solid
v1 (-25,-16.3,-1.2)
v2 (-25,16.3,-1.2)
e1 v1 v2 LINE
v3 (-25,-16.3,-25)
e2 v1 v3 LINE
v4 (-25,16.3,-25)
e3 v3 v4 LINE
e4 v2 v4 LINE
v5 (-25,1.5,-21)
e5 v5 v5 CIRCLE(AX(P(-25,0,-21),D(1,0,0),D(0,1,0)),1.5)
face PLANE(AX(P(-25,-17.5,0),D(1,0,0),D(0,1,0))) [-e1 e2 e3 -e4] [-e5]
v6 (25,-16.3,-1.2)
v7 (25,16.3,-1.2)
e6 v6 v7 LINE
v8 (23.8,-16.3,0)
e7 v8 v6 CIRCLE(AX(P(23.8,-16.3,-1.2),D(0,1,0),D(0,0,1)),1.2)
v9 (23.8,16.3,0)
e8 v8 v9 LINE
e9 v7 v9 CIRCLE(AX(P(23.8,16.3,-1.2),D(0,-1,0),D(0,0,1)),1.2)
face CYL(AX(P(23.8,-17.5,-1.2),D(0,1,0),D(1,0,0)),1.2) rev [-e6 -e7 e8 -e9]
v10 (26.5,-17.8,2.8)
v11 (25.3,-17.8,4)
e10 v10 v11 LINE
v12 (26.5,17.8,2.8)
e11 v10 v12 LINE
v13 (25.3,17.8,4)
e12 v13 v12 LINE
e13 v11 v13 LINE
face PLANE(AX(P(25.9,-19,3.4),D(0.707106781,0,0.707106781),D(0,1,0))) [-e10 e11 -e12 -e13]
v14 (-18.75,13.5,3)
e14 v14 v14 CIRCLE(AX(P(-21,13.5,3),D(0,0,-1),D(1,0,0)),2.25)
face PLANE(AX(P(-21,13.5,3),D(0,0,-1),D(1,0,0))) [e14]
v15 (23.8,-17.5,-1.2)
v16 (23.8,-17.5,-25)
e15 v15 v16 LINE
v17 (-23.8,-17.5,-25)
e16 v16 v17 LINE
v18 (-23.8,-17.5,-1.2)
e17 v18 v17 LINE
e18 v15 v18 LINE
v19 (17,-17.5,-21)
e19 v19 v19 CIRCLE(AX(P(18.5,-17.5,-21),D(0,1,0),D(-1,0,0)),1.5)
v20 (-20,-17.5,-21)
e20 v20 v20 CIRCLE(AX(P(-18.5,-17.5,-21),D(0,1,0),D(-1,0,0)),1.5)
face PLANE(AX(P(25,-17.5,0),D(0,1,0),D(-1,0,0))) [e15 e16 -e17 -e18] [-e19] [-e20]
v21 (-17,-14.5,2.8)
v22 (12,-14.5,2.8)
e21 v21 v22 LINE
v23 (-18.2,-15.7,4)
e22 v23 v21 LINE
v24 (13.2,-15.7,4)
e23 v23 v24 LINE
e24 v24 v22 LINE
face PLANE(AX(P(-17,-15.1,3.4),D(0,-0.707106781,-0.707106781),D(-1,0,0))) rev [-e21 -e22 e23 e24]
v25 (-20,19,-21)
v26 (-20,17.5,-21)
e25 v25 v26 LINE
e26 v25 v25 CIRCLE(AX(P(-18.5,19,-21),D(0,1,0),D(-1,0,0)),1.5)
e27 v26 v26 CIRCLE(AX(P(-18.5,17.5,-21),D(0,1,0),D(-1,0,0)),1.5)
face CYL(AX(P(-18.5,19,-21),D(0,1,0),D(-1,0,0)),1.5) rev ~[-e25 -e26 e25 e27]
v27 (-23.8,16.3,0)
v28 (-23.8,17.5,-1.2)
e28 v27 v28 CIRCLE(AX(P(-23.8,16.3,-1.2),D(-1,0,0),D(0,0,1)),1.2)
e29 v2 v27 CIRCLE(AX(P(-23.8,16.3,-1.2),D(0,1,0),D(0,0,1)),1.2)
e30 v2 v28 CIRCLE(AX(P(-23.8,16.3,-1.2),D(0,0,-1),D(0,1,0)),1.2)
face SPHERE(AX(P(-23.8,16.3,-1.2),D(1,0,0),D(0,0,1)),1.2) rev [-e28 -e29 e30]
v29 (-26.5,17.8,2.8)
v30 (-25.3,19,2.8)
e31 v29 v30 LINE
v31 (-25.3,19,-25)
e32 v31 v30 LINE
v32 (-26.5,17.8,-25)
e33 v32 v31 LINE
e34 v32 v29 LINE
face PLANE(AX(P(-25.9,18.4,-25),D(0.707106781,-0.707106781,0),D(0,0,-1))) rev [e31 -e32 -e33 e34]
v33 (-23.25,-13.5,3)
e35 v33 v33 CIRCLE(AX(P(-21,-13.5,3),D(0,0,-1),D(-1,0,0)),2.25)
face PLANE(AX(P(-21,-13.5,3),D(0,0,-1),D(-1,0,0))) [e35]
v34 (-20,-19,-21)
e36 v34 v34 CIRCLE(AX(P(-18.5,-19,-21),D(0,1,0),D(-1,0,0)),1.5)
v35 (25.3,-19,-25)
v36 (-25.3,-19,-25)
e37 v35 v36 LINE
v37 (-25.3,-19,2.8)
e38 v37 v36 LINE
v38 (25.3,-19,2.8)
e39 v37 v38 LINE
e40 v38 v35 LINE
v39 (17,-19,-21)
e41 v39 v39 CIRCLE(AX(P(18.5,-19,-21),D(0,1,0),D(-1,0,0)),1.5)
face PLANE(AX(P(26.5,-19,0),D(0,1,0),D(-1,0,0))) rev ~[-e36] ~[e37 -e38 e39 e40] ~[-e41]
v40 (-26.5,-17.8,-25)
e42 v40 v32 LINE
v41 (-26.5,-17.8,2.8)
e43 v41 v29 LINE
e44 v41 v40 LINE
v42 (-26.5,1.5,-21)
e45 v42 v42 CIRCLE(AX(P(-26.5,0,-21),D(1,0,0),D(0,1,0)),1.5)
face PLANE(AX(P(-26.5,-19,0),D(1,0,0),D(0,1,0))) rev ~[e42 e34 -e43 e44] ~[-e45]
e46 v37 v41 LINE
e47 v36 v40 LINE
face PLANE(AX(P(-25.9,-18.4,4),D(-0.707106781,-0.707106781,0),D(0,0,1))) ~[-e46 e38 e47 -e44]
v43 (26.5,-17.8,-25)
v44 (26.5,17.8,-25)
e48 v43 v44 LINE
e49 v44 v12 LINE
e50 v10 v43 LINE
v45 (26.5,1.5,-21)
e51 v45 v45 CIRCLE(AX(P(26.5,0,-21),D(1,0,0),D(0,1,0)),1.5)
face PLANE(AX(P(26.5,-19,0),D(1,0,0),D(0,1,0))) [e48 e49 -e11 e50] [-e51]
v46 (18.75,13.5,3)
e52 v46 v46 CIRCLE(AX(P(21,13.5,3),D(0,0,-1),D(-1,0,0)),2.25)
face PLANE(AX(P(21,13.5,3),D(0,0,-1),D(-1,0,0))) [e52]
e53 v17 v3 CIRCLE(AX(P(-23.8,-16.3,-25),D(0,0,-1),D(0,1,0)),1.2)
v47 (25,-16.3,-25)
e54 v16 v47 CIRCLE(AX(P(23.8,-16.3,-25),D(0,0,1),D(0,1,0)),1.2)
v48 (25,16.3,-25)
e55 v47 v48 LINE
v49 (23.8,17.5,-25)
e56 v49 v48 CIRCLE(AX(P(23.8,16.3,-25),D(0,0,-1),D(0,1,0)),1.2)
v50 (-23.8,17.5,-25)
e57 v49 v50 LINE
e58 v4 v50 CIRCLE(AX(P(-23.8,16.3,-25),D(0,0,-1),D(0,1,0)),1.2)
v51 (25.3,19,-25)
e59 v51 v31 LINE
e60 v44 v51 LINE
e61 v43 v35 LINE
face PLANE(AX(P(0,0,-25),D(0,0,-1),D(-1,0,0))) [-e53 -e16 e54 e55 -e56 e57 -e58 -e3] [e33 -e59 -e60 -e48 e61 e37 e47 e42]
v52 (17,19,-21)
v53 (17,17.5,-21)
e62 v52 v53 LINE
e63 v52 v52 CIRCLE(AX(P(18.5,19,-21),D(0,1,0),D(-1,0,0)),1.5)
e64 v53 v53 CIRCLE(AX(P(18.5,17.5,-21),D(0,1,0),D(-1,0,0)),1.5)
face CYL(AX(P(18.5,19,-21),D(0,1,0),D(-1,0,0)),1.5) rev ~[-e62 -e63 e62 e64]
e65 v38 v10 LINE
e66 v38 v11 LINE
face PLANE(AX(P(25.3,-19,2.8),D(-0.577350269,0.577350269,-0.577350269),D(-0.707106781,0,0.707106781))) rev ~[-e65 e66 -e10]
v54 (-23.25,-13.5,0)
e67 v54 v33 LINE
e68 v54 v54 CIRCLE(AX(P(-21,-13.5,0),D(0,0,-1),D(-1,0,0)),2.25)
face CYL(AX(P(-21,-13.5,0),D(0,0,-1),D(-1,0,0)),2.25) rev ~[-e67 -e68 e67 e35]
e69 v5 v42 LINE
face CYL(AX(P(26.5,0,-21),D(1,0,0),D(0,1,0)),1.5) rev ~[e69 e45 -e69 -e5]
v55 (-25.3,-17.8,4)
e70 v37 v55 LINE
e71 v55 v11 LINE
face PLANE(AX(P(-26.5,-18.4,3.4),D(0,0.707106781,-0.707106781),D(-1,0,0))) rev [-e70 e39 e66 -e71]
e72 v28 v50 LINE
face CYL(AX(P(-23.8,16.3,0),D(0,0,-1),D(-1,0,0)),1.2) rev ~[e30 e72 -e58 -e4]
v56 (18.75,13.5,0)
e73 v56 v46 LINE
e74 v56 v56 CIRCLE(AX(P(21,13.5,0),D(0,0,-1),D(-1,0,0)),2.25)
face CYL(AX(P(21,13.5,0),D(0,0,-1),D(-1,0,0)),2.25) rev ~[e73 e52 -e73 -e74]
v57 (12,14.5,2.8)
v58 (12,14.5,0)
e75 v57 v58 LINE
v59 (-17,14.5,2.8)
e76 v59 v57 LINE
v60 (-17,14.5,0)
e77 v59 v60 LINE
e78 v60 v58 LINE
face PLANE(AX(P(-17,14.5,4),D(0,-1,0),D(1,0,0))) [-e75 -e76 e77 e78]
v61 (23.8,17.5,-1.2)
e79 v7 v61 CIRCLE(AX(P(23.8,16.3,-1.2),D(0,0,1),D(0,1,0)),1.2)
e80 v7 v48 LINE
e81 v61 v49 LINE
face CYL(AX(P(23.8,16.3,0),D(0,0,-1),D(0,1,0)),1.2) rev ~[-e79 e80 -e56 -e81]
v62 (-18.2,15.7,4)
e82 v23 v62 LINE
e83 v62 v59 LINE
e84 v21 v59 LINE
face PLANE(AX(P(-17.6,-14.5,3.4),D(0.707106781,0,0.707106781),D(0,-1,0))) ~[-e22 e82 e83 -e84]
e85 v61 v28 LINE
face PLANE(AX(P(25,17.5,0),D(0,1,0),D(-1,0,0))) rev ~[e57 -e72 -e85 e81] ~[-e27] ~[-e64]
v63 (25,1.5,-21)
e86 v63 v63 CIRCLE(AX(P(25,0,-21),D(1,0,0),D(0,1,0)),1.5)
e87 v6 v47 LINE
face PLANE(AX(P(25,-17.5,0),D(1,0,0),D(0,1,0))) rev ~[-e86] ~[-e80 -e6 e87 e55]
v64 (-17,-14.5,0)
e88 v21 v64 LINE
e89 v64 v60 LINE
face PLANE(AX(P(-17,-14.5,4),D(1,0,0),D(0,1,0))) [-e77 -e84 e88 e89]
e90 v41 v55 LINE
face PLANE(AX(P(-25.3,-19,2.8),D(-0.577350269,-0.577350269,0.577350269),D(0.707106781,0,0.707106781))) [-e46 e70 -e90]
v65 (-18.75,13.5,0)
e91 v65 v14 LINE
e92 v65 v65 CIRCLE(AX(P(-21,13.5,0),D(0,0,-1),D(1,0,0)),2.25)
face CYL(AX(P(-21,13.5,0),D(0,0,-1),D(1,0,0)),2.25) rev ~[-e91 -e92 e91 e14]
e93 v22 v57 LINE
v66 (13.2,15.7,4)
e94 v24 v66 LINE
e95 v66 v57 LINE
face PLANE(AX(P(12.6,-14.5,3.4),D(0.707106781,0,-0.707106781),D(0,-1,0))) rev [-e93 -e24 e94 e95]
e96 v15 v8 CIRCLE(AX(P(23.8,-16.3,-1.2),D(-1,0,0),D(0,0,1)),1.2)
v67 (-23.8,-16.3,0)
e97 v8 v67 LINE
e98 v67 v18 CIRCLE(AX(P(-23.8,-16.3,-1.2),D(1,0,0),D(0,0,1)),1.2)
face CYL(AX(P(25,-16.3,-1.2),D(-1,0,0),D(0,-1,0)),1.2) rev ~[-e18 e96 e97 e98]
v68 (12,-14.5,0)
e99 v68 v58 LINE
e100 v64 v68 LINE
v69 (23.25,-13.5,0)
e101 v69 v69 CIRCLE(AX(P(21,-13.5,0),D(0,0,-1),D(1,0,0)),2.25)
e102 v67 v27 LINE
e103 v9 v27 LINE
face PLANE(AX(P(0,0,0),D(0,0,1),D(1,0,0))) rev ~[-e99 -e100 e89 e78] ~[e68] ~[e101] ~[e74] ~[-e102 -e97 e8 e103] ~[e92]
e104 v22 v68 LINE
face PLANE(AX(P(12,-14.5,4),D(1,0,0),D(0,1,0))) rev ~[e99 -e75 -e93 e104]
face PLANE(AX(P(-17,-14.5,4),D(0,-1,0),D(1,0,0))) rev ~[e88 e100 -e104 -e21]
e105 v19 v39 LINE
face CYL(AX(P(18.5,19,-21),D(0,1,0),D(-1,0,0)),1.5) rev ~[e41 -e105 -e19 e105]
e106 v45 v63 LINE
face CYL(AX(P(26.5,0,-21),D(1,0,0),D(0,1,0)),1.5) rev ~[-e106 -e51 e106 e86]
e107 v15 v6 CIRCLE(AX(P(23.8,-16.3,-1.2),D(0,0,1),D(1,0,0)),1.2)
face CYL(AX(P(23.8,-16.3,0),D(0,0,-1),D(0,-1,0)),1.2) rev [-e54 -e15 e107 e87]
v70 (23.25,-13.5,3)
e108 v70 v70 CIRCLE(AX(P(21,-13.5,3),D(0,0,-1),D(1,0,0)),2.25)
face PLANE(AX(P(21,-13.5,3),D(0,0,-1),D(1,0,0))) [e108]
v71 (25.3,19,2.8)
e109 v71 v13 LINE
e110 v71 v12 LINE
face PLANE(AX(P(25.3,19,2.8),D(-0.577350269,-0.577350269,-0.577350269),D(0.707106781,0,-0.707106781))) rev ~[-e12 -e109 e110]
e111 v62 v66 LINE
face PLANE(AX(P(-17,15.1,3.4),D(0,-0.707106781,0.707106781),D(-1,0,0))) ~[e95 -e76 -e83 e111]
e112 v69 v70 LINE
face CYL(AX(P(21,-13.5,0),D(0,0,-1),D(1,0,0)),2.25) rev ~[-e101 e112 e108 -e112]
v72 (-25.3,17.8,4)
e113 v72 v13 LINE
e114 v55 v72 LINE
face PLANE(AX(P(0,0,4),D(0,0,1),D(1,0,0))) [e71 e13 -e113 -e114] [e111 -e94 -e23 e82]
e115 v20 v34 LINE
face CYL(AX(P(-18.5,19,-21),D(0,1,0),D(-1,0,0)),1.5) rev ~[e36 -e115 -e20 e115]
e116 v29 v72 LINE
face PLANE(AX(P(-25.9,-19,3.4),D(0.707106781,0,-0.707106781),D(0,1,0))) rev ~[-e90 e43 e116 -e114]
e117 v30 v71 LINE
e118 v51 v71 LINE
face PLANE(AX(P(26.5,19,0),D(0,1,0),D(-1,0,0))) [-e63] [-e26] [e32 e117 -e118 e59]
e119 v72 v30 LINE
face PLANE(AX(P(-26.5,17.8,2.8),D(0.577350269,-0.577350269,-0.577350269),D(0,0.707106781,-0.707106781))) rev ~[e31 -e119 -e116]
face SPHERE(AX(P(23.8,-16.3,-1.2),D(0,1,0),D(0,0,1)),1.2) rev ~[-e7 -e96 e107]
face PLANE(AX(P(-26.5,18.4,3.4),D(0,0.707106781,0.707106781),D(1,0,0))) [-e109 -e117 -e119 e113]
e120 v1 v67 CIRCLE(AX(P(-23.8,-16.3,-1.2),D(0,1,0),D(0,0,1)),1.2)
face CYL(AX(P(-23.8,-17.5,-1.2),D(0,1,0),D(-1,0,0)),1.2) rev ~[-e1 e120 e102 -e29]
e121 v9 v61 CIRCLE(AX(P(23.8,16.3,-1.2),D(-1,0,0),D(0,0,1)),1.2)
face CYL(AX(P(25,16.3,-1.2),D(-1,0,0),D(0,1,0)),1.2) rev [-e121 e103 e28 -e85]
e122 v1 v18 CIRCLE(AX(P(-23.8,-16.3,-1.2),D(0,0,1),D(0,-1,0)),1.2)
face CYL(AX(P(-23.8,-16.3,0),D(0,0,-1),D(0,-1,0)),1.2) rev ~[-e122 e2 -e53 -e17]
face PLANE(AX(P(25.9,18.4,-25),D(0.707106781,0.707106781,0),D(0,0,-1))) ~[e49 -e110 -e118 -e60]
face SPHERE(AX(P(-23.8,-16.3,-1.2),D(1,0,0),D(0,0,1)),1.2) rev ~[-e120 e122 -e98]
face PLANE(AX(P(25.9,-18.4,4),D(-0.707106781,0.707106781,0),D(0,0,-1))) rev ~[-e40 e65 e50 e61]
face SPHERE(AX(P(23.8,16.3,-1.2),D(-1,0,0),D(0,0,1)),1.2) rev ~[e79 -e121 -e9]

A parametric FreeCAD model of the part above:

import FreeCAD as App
import Part
import Sketcher
from FreeCAD import Vector
Q = App.Units.Quantity


def edges_at(feature, points):
    """Names of the edges that pass closest to the given points."""
    edges = feature.Shape.Edges
    near = lambda p: min(range(len(edges)), key=lambda i: edges[i].distToShape(Part.Vertex(*p))[0])
    return sorted({f"Edge{near(p) + 1}" for p in points})


def add_polygon(sketch, points):
    """Adds a closed chain of lines whose ends are joined by coincident constraints."""
    first, n = sketch.GeometryCount, len(points)
    for a, b in zip(points, points[1:] + points[:1]):
        sketch.addGeometry(Part.LineSegment(App.Vector(*a, 0), App.Vector(*b, 0)), False)
    for i in range(n):
        sketch.addConstraint(Sketcher.Constraint("Coincident", first + i, 2, first + (i + 1) % n, 1))

doc = App.newDocument("Part")
body = doc.addObject("PartDesign::Body", "Body")

# Sketch on XY plane
sketch1 = body.newObject("Sketcher::SketchObject", "Sketch")
sketch1.AttachmentSupport = (doc.getObject("XY_Plane"), [""])
sketch1.MapMode = "FlatFace"
add_polygon(sketch1, [(-26.5, 19), (-26.5, -19), (26.5, -19), (26.5, 19)])  # lines 0-3
sketch1.addConstraint(Sketcher.Constraint("Vertical", 0))
sketch1.addConstraint(Sketcher.Constraint("Horizontal", 1))
sketch1.addConstraint(Sketcher.Constraint("Vertical", 2))
sketch1.addConstraint(Sketcher.Constraint("Horizontal", 3))
sketch1.addConstraint(Sketcher.Constraint("Symmetric", 0, 2, 2, 2, -1, 1))
sketch1.addConstraint(Sketcher.Constraint("DistanceX", 1, 1, 1, 2, Q("53 mm")))
sketch1.addConstraint(Sketcher.Constraint("DistanceY", 0, 2, 0, 1, Q("38 mm")))
pad1 = body.newObject("PartDesign::Pad", "Pad")
pad1.Profile = sketch1
pad1.Length = 4

# Sketch on XY plane
sketch2 = body.newObject("Sketcher::SketchObject", "Sketch001")
sketch2.AttachmentSupport = (doc.getObject("XY_Plane"), [""])
sketch2.MapMode = "FlatFace"
sketch2.AttachmentOffset = App.Placement(Vector(0, 0, 4), App.Rotation())
add_polygon(sketch2, [(-17, 14.5), (-17, -14.5), (12, -14.5), (12, 14.5)])  # lines 0-3
sketch2.addConstraint(Sketcher.Constraint("Vertical", 0))
sketch2.addConstraint(Sketcher.Constraint("Horizontal", 1))
sketch2.addConstraint(Sketcher.Constraint("Vertical", 2))
sketch2.addConstraint(Sketcher.Constraint("Horizontal", 3))
sketch2.addConstraint(Sketcher.Constraint("Equal", 3, 0))
sketch2.addConstraint(Sketcher.Constraint("DistanceX", 1, 1, 1, 2, Q("29 mm")))
sketch2.addConstraint(Sketcher.Constraint("DistanceX", 0, 2, -1, 1, Q("17 mm")))
sketch2.addConstraint(Sketcher.Constraint("DistanceY", 0, 2, -1, 1, Q("14.5 mm")))
pocket1 = body.newObject("PartDesign::Pocket", "Pocket")
pocket1.Profile = sketch2
pocket1.Length = 4

# Sketch on XY plane
sketch3 = body.newObject("Sketcher::SketchObject", "Sketch002")
sketch3.AttachmentSupport = (doc.getObject("XY_Plane"), [""])
sketch3.MapMode = "FlatFace"
sketch3.addGeometry(Part.Circle(Vector(21, 13.5, 0), Vector(0, 0, 1), 2.25), False)
sketch3.addGeometry(Part.Circle(Vector(21, -13.5, 0), Vector(0, 0, 1), 2.25), False)
sketch3.addGeometry(Part.Circle(Vector(-21, -13.5, 0), Vector(0, 0, 1), 2.25), False)
sketch3.addGeometry(Part.Circle(Vector(-21, 13.5, 0), Vector(0, 0, 1), 2.25), False)
sketch3.addConstraint(Sketcher.Constraint("Equal", 0, 1))
sketch3.addConstraint(Sketcher.Constraint("Equal", 1, 2))
sketch3.addConstraint(Sketcher.Constraint("Equal", 2, 3))
sketch3.addConstraint(Sketcher.Constraint("Symmetric", 0, 3, 2, 3, -1, 1))
sketch3.addConstraint(Sketcher.Constraint("Symmetric", 1, 3, 3, 3, -1, 1))
sketch3.addConstraint(Sketcher.Constraint("Symmetric", 1, 3, 2, 3, -2))
sketch3.addConstraint(Sketcher.Constraint("Diameter", 0, Q("4.5 mm")))
sketch3.addConstraint(Sketcher.Constraint("DistanceX", -1, 1, 0, 3, Q("21 mm")))
sketch3.addConstraint(Sketcher.Constraint("DistanceY", 1, 3, 0, 3, Q("27 mm")))
pocket2 = body.newObject("PartDesign::Pocket", "Pocket001")
pocket2.Profile = sketch3
pocket2.Length = 3
pocket2.Reversed = True

# Sketch on XY plane
sketch4 = body.newObject("Sketcher::SketchObject", "Sketch003")
sketch4.AttachmentSupport = (doc.getObject("XY_Plane"), [""])
sketch4.MapMode = "FlatFace"
add_polygon(sketch4, [(26.5, 19), (26.5, -19), (-26.5, -19), (-26.5, 19)])  # lines 0-3
add_polygon(sketch4, [(-25, -17.5), (25, -17.5), (25, 17.5), (-25, 17.5)])  # lines 4-7
sketch4.addConstraint(Sketcher.Constraint("Vertical", 0))
sketch4.addConstraint(Sketcher.Constraint("Horizontal", 1))
sketch4.addConstraint(Sketcher.Constraint("Vertical", 2))
sketch4.addConstraint(Sketcher.Constraint("Horizontal", 3))
sketch4.addConstraint(Sketcher.Constraint("Horizontal", 4))
sketch4.addConstraint(Sketcher.Constraint("Vertical", 5))
sketch4.addConstraint(Sketcher.Constraint("Horizontal", 6))
sketch4.addConstraint(Sketcher.Constraint("Vertical", 7))
sketch4.addConstraint(Sketcher.Constraint("Symmetric", 0, 2, 2, 2, -1, 1))
sketch4.addConstraint(Sketcher.Constraint("Symmetric", 4, 2, 6, 2, -1, 1))
sketch4.addConstraint(Sketcher.Constraint("DistanceX", 1, 2, 1, 1, Q("53 mm")))
sketch4.addConstraint(Sketcher.Constraint("DistanceX", 4, 1, 4, 2, Q("50 mm")))
sketch4.addConstraint(Sketcher.Constraint("DistanceY", 0, 2, 0, 1, Q("38 mm")))
sketch4.addConstraint(Sketcher.Constraint("DistanceY", 5, 1, 5, 2, Q("35 mm")))
pad2 = body.newObject("PartDesign::Pad", "Pad001")
pad2.Profile = sketch4
pad2.Length = 25
pad2.Reversed = True
doc.recompute()

chamfer = body.newObject("PartDesign::Chamfer", "Chamfer")
chamfer.Base = (pad2, edges_at(pad2, [
    (26.5, 0, 4),
    (0, 19, 4),
    (-17, 0, 4),
    (-2.5, -14.5, 4),
    (12, 0, 4),
    (-2.5, 14.5, 4),
    (-26.5, 0, 4),
    (-26.5, 19, -10.5),
    (26.5, 19, -10.5),
    (26.5, -19, -10.5),
    (-26.5, -19, -10.5),
    (0, -19, 4),
]))
chamfer.Size = 1.2
doc.recompute()

fillet = body.newObject("PartDesign::Fillet", "Fillet")
fillet.Base = (chamfer, edges_at(chamfer, [
    (0, 17.5, 0),
    (25, 0, 0),
    (0, -17.5, 0),
    (-25, 0, 0),
    (25, 17.5, -12.5),
    (25, -17.5, -12.5),
    (-25, -17.5, -12.5),
    (-25, 17.5, -12.5),
]))
fillet.Radius = 1.2

# Sketch on YZ plane
sketch5 = body.newObject("Sketcher::SketchObject", "Sketch004")
sketch5.AttachmentSupport = (doc.getObject("YZ_Plane"), [""])
sketch5.MapMode = "FlatFace"
sketch5.AttachmentOffset = App.Placement(Vector(0, 0, 26.5), App.Rotation())
sketch5.addGeometry(Part.Circle(Vector(0, -21, 0), Vector(0, 0, 1), 1.5), False)
sketch5.addConstraint(Sketcher.Constraint("PointOnObject", 0, 3, -2))
sketch5.addConstraint(Sketcher.Constraint("Diameter", 0, Q("3 mm")))
sketch5.addConstraint(Sketcher.Constraint("DistanceY", 0, 3, -1, 1, Q("21 mm")))
pocket3 = body.newObject("PartDesign::Pocket", "Pocket002")
pocket3.Profile = sketch5
pocket3.Type = "ThroughAll"

# Sketch on XZ plane
sketch6 = body.newObject("Sketcher::SketchObject", "Sketch005")
sketch6.AttachmentSupport = (doc.getObject("XZ_Plane"), [""])
sketch6.MapMode = "FlatFace"
sketch6.AttachmentOffset = App.Placement(Vector(0, 0, -19), App.Rotation())
sketch6.addGeometry(Part.Circle(Vector(-18.5, -21, 0), Vector(0, 0, 1), 1.5), False)
sketch6.addGeometry(Part.Circle(Vector(18.5, -21, 0), Vector(0, 0, 1), 1.5), False)
sketch6.addConstraint(Sketcher.Constraint("Equal", 0, 1))
sketch6.addConstraint(Sketcher.Constraint("Symmetric", 0, 3, 1, 3, -2))
sketch6.addConstraint(Sketcher.Constraint("Diameter", 0, Q("3 mm")))
sketch6.addConstraint(Sketcher.Constraint("DistanceY", 0, 3, -1, 1, Q("21 mm")))
sketch6.addConstraint(Sketcher.Constraint("DistanceX", 0, 3, 1, 3, Q("37 mm")))
pocket4 = body.newObject("PartDesign::Pocket", "Pocket003")
pocket4.Profile = sketch6
pocket4.Type = "ThroughAll"
pocket4.Reversed = True

doc.recompute()
